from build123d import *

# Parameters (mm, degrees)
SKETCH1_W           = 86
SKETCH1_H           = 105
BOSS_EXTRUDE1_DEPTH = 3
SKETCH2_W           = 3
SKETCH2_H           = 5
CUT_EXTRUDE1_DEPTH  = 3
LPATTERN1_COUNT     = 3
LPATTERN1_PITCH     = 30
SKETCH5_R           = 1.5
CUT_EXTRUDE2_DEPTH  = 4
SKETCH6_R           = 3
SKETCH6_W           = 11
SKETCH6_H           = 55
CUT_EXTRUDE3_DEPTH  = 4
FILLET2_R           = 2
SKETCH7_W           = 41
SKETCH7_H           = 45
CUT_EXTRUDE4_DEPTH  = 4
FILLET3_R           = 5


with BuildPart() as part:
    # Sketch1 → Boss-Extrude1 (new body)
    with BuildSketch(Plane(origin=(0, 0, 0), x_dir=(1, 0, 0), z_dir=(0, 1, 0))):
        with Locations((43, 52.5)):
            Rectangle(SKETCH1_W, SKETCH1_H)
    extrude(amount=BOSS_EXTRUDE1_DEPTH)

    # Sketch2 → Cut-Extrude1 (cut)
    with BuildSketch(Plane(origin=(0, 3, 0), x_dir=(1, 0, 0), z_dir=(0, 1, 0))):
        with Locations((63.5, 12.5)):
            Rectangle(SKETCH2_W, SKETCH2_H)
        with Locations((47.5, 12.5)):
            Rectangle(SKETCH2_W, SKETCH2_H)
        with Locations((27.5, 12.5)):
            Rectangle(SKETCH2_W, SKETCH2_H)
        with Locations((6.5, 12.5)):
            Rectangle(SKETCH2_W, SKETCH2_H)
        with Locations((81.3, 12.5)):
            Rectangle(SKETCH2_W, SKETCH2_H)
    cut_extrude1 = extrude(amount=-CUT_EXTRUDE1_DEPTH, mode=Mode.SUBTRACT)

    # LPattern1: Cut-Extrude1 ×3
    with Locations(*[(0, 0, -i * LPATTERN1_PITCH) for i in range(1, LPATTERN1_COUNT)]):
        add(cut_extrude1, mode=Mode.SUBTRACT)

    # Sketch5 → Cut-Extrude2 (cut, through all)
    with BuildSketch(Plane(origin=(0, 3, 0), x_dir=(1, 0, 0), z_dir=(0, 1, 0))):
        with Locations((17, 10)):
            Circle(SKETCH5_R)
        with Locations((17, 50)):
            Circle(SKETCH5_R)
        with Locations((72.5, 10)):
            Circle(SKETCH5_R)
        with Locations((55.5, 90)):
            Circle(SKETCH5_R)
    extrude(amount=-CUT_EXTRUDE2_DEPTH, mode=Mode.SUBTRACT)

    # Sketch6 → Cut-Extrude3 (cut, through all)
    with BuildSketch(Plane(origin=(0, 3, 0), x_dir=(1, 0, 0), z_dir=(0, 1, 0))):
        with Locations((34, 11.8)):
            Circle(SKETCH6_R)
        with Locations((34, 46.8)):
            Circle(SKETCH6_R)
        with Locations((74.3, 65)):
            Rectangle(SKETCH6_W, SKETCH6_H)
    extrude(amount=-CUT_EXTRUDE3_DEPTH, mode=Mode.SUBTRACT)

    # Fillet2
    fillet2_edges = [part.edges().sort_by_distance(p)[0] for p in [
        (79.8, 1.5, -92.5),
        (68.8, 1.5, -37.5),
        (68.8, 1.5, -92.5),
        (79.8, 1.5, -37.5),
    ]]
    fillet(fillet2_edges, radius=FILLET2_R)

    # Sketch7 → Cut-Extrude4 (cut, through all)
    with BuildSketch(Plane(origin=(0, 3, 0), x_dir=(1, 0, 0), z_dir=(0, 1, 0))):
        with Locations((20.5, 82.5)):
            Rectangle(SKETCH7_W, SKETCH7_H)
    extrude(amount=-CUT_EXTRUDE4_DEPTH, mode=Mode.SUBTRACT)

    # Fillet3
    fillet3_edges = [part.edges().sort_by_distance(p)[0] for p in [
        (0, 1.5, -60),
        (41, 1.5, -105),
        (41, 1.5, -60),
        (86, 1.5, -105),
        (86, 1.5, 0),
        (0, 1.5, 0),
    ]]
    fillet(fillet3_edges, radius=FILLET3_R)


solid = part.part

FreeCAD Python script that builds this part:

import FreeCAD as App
import Part
import Sketcher
from FreeCAD import Vector


def edges_at(feature, points):
    """Names of the edges that pass closest to the given points."""
    edges = feature.Shape.Edges
    near = lambda p: min(range(len(edges)), key=lambda i: edges[i].distToShape(Part.Vertex(*p))[0])
    return sorted({f"Edge{near(p) + 1}" for p in points})

doc = App.newDocument("Part")
body = doc.addObject("PartDesign::Body", "Body")

# Sketch on XZ plane
sketch1 = body.newObject("Sketcher::SketchObject", "Sketch")
sketch1.AttachmentSupport = (doc.getObject("XZ_Plane"), [""])
sketch1.MapMode = "FlatFace"
sketch1.addGeometry(Part.LineSegment(Vector(0, -105, 0), Vector(0, 0, 0)), False)
sketch1.addGeometry(Part.LineSegment(Vector(0, 0, 0), Vector(86, 0, 0)), False)
sketch1.addGeometry(Part.LineSegment(Vector(86, 0, 0), Vector(86, -105, 0)), False)
sketch1.addGeometry(Part.LineSegment(Vector(86, -105, 0), Vector(0, -105, 0)), False)
sketch1.addConstraint(Sketcher.Constraint("Coincident", 0, 2, 1, 1))
sketch1.addConstraint(Sketcher.Constraint("Coincident", 1, 2, 2, 1))
sketch1.addConstraint(Sketcher.Constraint("Coincident", 2, 2, 3, 1))
sketch1.addConstraint(Sketcher.Constraint("Coincident", 3, 2, 0, 1))
sketch1.addConstraint(Sketcher.Constraint("Vertical", 0))
sketch1.addConstraint(Sketcher.Constraint("Horizontal", 1))
sketch1.addConstraint(Sketcher.Constraint("Vertical", 2))
sketch1.addConstraint(Sketcher.Constraint("Horizontal", 3))
sketch1.addConstraint(Sketcher.Constraint("Coincident", 0, 2, -1, 1))
sketch1.addConstraint(Sketcher.Constraint("DistanceX", 1, 1, 1, 2, 86.0))
sketch1.addConstraint(Sketcher.Constraint("DistanceY", 0, 1, 0, 2, 105.0))
pad1 = body.newObject("PartDesign::Pad", "Pad")
pad1.Profile = sketch1
pad1.Length = 3
pad1.Reversed = True

# Sketch on XZ plane
sketch2 = body.newObject("Sketcher::SketchObject", "Sketch001")
sketch2.AttachmentSupport = (doc.getObject("XZ_Plane"), [""])
sketch2.MapMode = "FlatFace"
sketch2.AttachmentOffset = App.Placement(Vector(0, 0, -3), App.Rotation())
sketch2.addGeometry(Part.LineSegment(Vector(62, -15, 0), Vector(62, -10, 0)), False)
sketch2.addGeometry(Part.LineSegment(Vector(62, -10, 0), Vector(65, -10, 0)), False)
sketch2.addGeometry(Part.LineSegment(Vector(65, -10, 0), Vector(65, -15, 0)), False)
sketch2.addGeometry(Part.LineSegment(Vector(65, -15, 0), Vector(62, -15, 0)), False)
sketch2.addGeometry(Part.LineSegment(Vector(46, -15, 0), Vector(46, -10, 0)), False)
sketch2.addGeometry(Part.LineSegment(Vector(46, -10, 0), Vector(49, -10, 0)), False)
sketch2.addGeometry(Part.LineSegment(Vector(49, -10, 0), Vector(49, -15, 0)), False)
sketch2.addGeometry(Part.LineSegment(Vector(49, -15, 0), Vector(46, -15, 0)), False)
sketch2.addGeometry(Part.LineSegment(Vector(26, -15, 0), Vector(26, -10, 0)), False)
sketch2.addGeometry(Part.LineSegment(Vector(26, -10, 0), Vector(29, -10, 0)), False)
sketch2.addGeometry(Part.LineSegment(Vector(29, -10, 0), Vector(29, -15, 0)), False)
sketch2.addGeometry(Part.LineSegment(Vector(29, -15, 0), Vector(26, -15, 0)), False)
sketch2.addGeometry(Part.LineSegment(Vector(5, -15, 0), Vector(5, -10, 0)), False)
sketch2.addGeometry(Part.LineSegment(Vector(5, -10, 0), Vector(8, -10, 0)), False)
sketch2.addGeometry(Part.LineSegment(Vector(8, -10, 0), Vector(8, -15, 0)), False)
sketch2.addGeometry(Part.LineSegment(Vector(8, -15, 0), Vector(5, -15, 0)), False)
sketch2.addGeometry(Part.LineSegment(Vector(79.8, -15, 0), Vector(79.8, -10, 0)), False)
sketch2.addGeometry(Part.LineSegment(Vector(79.8, -10, 0), Vector(82.8, -10, 0)), False)
sketch2.addGeometry(Part.LineSegment(Vector(82.8, -10, 0), Vector(82.8, -15, 0)), False)
sketch2.addGeometry(Part.LineSegment(Vector(82.8, -15, 0), Vector(79.8, -15, 0)), False)
sketch2.addConstraint(Sketcher.Constraint("Coincident", 0, 2, 1, 1))
sketch2.addConstraint(Sketcher.Constraint("Coincident", 1, 2, 2, 1))
sketch2.addConstraint(Sketcher.Constraint("Coincident", 2, 2, 3, 1))
sketch2.addConstraint(Sketcher.Constraint("Coincident", 3, 2, 0, 1))
sketch2.addConstraint(Sketcher.Constraint("Coincident", 4, 2, 5, 1))
sketch2.addConstraint(Sketcher.Constraint("Coincident", 5, 2, 6, 1))
sketch2.addConstraint(Sketcher.Constraint("Coincident", 6, 2, 7, 1))
sketch2.addConstraint(Sketcher.Constraint("Coincident", 7, 2, 4, 1))
sketch2.addConstraint(Sketcher.Constraint("Coincident", 8, 2, 9, 1))
sketch2.addConstraint(Sketcher.Constraint("Coincident", 9, 2, 10, 1))
sketch2.addConstraint(Sketcher.Constraint("Coincident", 10, 2, 11, 1))
sketch2.addConstraint(Sketcher.Constraint("Coincident", 11, 2, 8, 1))
sketch2.addConstraint(Sketcher.Constraint("Coincident", 12, 2, 13, 1))
sketch2.addConstraint(Sketcher.Constraint("Coincident", 13, 2, 14, 1))
sketch2.addConstraint(Sketcher.Constraint("Coincident", 14, 2, 15, 1))
sketch2.addConstraint(Sketcher.Constraint("Coincident", 15, 2, 12, 1))
sketch2.addConstraint(Sketcher.Constraint("Coincident", 16, 2, 17, 1))
sketch2.addConstraint(Sketcher.Constraint("Coincident", 17, 2, 18, 1))
sketch2.addConstraint(Sketcher.Constraint("Coincident", 18, 2, 19, 1))
sketch2.addConstraint(Sketcher.Constraint("Coincident", 19, 2, 16, 1))
sketch2.addConstraint(Sketcher.Constraint("Vertical", 0))
sketch2.addConstraint(Sketcher.Constraint("Horizontal", 1))
sketch2.addConstraint(Sketcher.Constraint("Vertical", 2))
sketch2.addConstraint(Sketcher.Constraint("Horizontal", 3))
sketch2.addConstraint(Sketcher.Constraint("Vertical", 4))
sketch2.addConstraint(Sketcher.Constraint("Horizontal", 5))
sketch2.addConstraint(Sketcher.Constraint("Vertical", 6))
sketch2.addConstraint(Sketcher.Constraint("Horizontal", 7))
sketch2.addConstraint(Sketcher.Constraint("Vertical", 8))
sketch2.addConstraint(Sketcher.Constraint("Horizontal", 9))
sketch2.addConstraint(Sketcher.Constraint("Vertical", 10))
sketch2.addConstraint(Sketcher.Constraint("Horizontal", 11))
sketch2.addConstraint(Sketcher.Constraint("Vertical", 12))
sketch2.addConstraint(Sketcher.Constraint("Horizontal", 13))
sketch2.addConstraint(Sketcher.Constraint("Vertical", 14))
sketch2.addConstraint(Sketcher.Constraint("Horizontal", 15))
sketch2.addConstraint(Sketcher.Constraint("Vertical", 16))
sketch2.addConstraint(Sketcher.Constraint("Horizontal", 17))
sketch2.addConstraint(Sketcher.Constraint("Vertical", 18))
sketch2.addConstraint(Sketcher.Constraint("Horizontal", 19))
sketch2.addConstraint(Sketcher.Constraint("Horizontal", 1, 2, 4, 2))
sketch2.addConstraint(Sketcher.Constraint("Horizontal", 3, 2, 6, 2))
sketch2.addConstraint(Sketcher.Constraint("Horizontal", 5, 2, 8, 2))
sketch2.addConstraint(Sketcher.Constraint("Horizontal", 7, 2, 10, 2))
sketch2.addConstraint(Sketcher.Constraint("Horizontal", 9, 2, 12, 2))
sketch2.addConstraint(Sketcher.Constraint("Horizontal", 11, 2, 14, 2))
sketch2.addConstraint(Sketcher.Constraint("Horizontal", 13, 2, 16, 2))
sketch2.addConstraint(Sketcher.Constraint("Horizontal", 15, 2, 18, 2))
sketch2.addConstraint(Sketcher.Constraint("Equal", 3, 5))
sketch2.addConstraint(Sketcher.Constraint("Equal", 7, 9))
sketch2.addConstraint(Sketcher.Constraint("Equal", 11, 13))
sketch2.addConstraint(Sketcher.Constraint("Equal", 15, 17))
sketch2.addConstraint(Sketcher.Constraint("DistanceX", 1, 1, 1, 2, 3.0))
sketch2.addConstraint(Sketcher.Constraint("DistanceY", 0, 1, 0, 2, 5.0))
sketch2.addConstraint(Sketcher.Constraint("DistanceX", -1, 1, 0, 2, 62.0))
sketch2.addConstraint(Sketcher.Constraint("DistanceY", 0, 2, -1, 1, 10.0))
sketch2.addConstraint(Sketcher.Constraint("DistanceX", -1, 1, 4, 2, 46.0))
sketch2.addConstraint(Sketcher.Constraint("DistanceX", -1, 1, 8, 2, 26.0))
sketch2.addConstraint(Sketcher.Constraint("DistanceX", -1, 1, 12, 2, 5.0))
sketch2.addConstraint(Sketcher.Constraint("DistanceX", -1, 1, 16, 2, 79.8))
pocket1 = body.newObject("PartDesign::Pocket", "Pocket")
pocket1.Profile = sketch2
pocket1.Length = 3
pocket1.Reversed = True
doc.recompute()

linearpattern = body.newObject("PartDesign::LinearPattern", "LinearPattern")
linearpattern.Originals = [pocket1]
linearpattern.Direction = (doc.getObject("Z_Axis"), [""])
linearpattern.Mode = "offset"
linearpattern.Offset = 30
linearpattern.Occurrences = 3
linearpattern.Reversed = True
body.Tip = linearpattern

# Sketch on XZ plane
sketch3 = body.newObject("Sketcher::SketchObject", "Sketch002")
sketch3.AttachmentSupport = (doc.getObject("XZ_Plane"), [""])
sketch3.MapMode = "FlatFace"
sketch3.AttachmentOffset = App.Placement(Vector(0, 0, -3), App.Rotation())
sketch3.addGeometry(Part.Circle(Vector(17, -10, 0), Vector(0, 0, 1), 1.5), False)
sketch3.addGeometry(Part.Circle(Vector(17, -50, 0), Vector(0, 0, 1), 1.5), False)
sketch3.addGeometry(Part.Circle(Vector(72.5, -10, 0), Vector(0, 0, 1), 1.5), False)
sketch3.addGeometry(Part.Circle(Vector(55.5, -90, 0), Vector(0, 0, 1), 1.5), False)
sketch3.addConstraint(Sketcher.Constraint("Equal", 0, 1))
sketch3.addConstraint(Sketcher.Constraint("Equal", 1, 2))
sketch3.addConstraint(Sketcher.Constraint("Equal", 2, 3))
sketch3.addConstraint(Sketcher.Constraint("Horizontal", 0, 3, 2, 3))
sketch3.addConstraint(Sketcher.Constraint("Vertical", 0, 3, 1, 3))
sketch3.addConstraint(Sketcher.Constraint("Diameter", 0, 3.0))
sketch3.addConstraint(Sketcher.Constraint("DistanceX", -1, 1, 0, 3, 17.0))
sketch3.addConstraint(Sketcher.Constraint("DistanceY", 0, 3, -1, 1, 10.0))
sketch3.addConstraint(Sketcher.Constraint("DistanceY", 1, 3, -1, 1, 50.0))
sketch3.addConstraint(Sketcher.Constraint("DistanceY", 3, 3, -1, 1, 90.0))
sketch3.addConstraint(Sketcher.Constraint("DistanceX", 3, 3, 2, 3, 17.0))
sketch3.addConstraint(Sketcher.Constraint("DistanceX", -1, 1, 2, 3, 72.5))
pocket2 = body.newObject("PartDesign::Pocket", "Pocket001")
pocket2.Profile = sketch3
pocket2.Type = "ThroughAll"
pocket2.Reversed = True

# Sketch on XZ plane
sketch4 = body.newObject("Sketcher::SketchObject", "Sketch003")
sketch4.AttachmentSupport = (doc.getObject("XZ_Plane"), [""])
sketch4.MapMode = "FlatFace"
sketch4.AttachmentOffset = App.Placement(Vector(0, 0, -3), App.Rotation())
sketch4.addGeometry(Part.Circle(Vector(34, -11.8, 0), Vector(0, 0, 1), 3), False)
sketch4.addGeometry(Part.Circle(Vector(34, -46.8, 0), Vector(0, 0, 1), 3), False)
sketch4.addGeometry(Part.LineSegment(Vector(68.8, -92.5, 0), Vector(68.8, -37.5, 0)), False)
sketch4.addGeometry(Part.LineSegment(Vector(68.8, -37.5, 0), Vector(79.8, -37.5, 0)), False)
sketch4.addGeometry(Part.LineSegment(Vector(79.8, -37.5, 0), Vector(79.8, -92.5, 0)), False)
sketch4.addGeometry(Part.LineSegment(Vector(79.8, -92.5, 0), Vector(68.8, -92.5, 0)), False)
sketch4.addConstraint(Sketcher.Constraint("Coincident", 2, 2, 3, 1))
sketch4.addConstraint(Sketcher.Constraint("Coincident", 3, 2, 4, 1))
sketch4.addConstraint(Sketcher.Constraint("Coincident", 4, 2, 5, 1))
sketch4.addConstraint(Sketcher.Constraint("Coincident", 5, 2, 2, 1))
sketch4.addConstraint(Sketcher.Constraint("Vertical", 2))
sketch4.addConstraint(Sketcher.Constraint("Horizontal", 3))
sketch4.addConstraint(Sketcher.Constraint("Vertical", 4))
sketch4.addConstraint(Sketcher.Constraint("Horizontal", 5))
sketch4.addConstraint(Sketcher.Constraint("Equal", 0, 1))
sketch4.addConstraint(Sketcher.Constraint("Vertical", 0, 3, 1, 3))
sketch4.addConstraint(Sketcher.Constraint("Diameter", 0, 6.0))
sketch4.addConstraint(Sketcher.Constraint("DistanceX", 3, 1, 3, 2, 11.0))
sketch4.addConstraint(Sketcher.Constraint("DistanceY", 2, 1, 2, 2, 55.0))
sketch4.addConstraint(Sketcher.Constraint("DistanceX", -1, 1, 0, 3, 34.0))
sketch4.addConstraint(Sketcher.Constraint("DistanceY", 1, 3, 0, 3, 35.0))
sketch4.addConstraint(Sketcher.Constraint("DistanceY", 0, 3, -1, 1, 11.8))
sketch4.addConstraint(Sketcher.Constraint("DistanceX", -1, 1, 2, 2, 68.8))
sketch4.addConstraint(Sketcher.Constraint("DistanceY", 2, 2, -1, 1, 37.5))
pocket3 = body.newObject("PartDesign::Pocket", "Pocket002")
pocket3.Profile = sketch4
pocket3.Type = "ThroughAll"
pocket3.Reversed = True
doc.recompute()

fillet = body.newObject("PartDesign::Fillet", "Fillet")
fillet.Base = (pocket3, edges_at(pocket3, [
    (79.8, 1.5, -92.5),
    (68.8, 1.5, -37.5),
    (68.8, 1.5, -92.5),
    (79.8, 1.5, -37.5),
]))
fillet.Radius = 2

# Sketch on XZ plane
sketch5 = body.newObject("Sketcher::SketchObject", "Sketch004")
sketch5.AttachmentSupport = (doc.getObject("XZ_Plane"), [""])
sketch5.MapMode = "FlatFace"
sketch5.AttachmentOffset = App.Placement(Vector(0, 0, -3), App.Rotation())
sketch5.addGeometry(Part.LineSegment(Vector(0, -105, 0), Vector(0, -60, 0)), False)
sketch5.addGeometry(Part.LineSegment(Vector(0, -60, 0), Vector(41, -60, 0)), False)
sketch5.addGeometry(Part.LineSegment(Vector(41, -60, 0), Vector(41, -105, 0)), False)
sketch5.addGeometry(Part.LineSegment(Vector(41, -105, 0), Vector(0, -105, 0)), False)
sketch5.addConstraint(Sketcher.Constraint("Coincident", 0, 2, 1, 1))
sketch5.addConstraint(Sketcher.Constraint("Coincident", 1, 2, 2, 1))
sketch5.addConstraint(Sketcher.Constraint("Coincident", 2, 2, 3, 1))
sketch5.addConstraint(Sketcher.Constraint("Coincident", 3, 2, 0, 1))
sketch5.addConstraint(Sketcher.Constraint("Vertical", 0))
sketch5.addConstraint(Sketcher.Constraint("Horizontal", 1))
sketch5.addConstraint(Sketcher.Constraint("Vertical", 2))
sketch5.addConstraint(Sketcher.Constraint("Horizontal", 3))
sketch5.addConstraint(Sketcher.Constraint("PointOnObject", 0, 2, -2))
sketch5.addConstraint(Sketcher.Constraint("DistanceX", 1, 1, 1, 2, 41.0))
sketch5.addConstraint(Sketcher.Constraint("DistanceY", 0, 1, 0, 2, 45.0))
sketch5.addConstraint(Sketcher.Constraint("DistanceY", 0, 2, -1, 1, 60.0))
pocket4 = body.newObject("PartDesign::Pocket", "Pocket003")
pocket4.Profile = sketch5
pocket4.Type = "ThroughAll"
pocket4.Reversed = True
doc.recompute()

fillet2 = body.newObject("PartDesign::Fillet", "Fillet001")
fillet2.Base = (pocket4, edges_at(pocket4, [
    (0, 1.5, -60),
    (41, 1.5, -105),
    (41, 1.5, -60),
    (86, 1.5, -105),
    (86, 1.5, 0),
    (0, 1.5, 0),
]))
fillet2.Radius = 5

doc.recompute()
